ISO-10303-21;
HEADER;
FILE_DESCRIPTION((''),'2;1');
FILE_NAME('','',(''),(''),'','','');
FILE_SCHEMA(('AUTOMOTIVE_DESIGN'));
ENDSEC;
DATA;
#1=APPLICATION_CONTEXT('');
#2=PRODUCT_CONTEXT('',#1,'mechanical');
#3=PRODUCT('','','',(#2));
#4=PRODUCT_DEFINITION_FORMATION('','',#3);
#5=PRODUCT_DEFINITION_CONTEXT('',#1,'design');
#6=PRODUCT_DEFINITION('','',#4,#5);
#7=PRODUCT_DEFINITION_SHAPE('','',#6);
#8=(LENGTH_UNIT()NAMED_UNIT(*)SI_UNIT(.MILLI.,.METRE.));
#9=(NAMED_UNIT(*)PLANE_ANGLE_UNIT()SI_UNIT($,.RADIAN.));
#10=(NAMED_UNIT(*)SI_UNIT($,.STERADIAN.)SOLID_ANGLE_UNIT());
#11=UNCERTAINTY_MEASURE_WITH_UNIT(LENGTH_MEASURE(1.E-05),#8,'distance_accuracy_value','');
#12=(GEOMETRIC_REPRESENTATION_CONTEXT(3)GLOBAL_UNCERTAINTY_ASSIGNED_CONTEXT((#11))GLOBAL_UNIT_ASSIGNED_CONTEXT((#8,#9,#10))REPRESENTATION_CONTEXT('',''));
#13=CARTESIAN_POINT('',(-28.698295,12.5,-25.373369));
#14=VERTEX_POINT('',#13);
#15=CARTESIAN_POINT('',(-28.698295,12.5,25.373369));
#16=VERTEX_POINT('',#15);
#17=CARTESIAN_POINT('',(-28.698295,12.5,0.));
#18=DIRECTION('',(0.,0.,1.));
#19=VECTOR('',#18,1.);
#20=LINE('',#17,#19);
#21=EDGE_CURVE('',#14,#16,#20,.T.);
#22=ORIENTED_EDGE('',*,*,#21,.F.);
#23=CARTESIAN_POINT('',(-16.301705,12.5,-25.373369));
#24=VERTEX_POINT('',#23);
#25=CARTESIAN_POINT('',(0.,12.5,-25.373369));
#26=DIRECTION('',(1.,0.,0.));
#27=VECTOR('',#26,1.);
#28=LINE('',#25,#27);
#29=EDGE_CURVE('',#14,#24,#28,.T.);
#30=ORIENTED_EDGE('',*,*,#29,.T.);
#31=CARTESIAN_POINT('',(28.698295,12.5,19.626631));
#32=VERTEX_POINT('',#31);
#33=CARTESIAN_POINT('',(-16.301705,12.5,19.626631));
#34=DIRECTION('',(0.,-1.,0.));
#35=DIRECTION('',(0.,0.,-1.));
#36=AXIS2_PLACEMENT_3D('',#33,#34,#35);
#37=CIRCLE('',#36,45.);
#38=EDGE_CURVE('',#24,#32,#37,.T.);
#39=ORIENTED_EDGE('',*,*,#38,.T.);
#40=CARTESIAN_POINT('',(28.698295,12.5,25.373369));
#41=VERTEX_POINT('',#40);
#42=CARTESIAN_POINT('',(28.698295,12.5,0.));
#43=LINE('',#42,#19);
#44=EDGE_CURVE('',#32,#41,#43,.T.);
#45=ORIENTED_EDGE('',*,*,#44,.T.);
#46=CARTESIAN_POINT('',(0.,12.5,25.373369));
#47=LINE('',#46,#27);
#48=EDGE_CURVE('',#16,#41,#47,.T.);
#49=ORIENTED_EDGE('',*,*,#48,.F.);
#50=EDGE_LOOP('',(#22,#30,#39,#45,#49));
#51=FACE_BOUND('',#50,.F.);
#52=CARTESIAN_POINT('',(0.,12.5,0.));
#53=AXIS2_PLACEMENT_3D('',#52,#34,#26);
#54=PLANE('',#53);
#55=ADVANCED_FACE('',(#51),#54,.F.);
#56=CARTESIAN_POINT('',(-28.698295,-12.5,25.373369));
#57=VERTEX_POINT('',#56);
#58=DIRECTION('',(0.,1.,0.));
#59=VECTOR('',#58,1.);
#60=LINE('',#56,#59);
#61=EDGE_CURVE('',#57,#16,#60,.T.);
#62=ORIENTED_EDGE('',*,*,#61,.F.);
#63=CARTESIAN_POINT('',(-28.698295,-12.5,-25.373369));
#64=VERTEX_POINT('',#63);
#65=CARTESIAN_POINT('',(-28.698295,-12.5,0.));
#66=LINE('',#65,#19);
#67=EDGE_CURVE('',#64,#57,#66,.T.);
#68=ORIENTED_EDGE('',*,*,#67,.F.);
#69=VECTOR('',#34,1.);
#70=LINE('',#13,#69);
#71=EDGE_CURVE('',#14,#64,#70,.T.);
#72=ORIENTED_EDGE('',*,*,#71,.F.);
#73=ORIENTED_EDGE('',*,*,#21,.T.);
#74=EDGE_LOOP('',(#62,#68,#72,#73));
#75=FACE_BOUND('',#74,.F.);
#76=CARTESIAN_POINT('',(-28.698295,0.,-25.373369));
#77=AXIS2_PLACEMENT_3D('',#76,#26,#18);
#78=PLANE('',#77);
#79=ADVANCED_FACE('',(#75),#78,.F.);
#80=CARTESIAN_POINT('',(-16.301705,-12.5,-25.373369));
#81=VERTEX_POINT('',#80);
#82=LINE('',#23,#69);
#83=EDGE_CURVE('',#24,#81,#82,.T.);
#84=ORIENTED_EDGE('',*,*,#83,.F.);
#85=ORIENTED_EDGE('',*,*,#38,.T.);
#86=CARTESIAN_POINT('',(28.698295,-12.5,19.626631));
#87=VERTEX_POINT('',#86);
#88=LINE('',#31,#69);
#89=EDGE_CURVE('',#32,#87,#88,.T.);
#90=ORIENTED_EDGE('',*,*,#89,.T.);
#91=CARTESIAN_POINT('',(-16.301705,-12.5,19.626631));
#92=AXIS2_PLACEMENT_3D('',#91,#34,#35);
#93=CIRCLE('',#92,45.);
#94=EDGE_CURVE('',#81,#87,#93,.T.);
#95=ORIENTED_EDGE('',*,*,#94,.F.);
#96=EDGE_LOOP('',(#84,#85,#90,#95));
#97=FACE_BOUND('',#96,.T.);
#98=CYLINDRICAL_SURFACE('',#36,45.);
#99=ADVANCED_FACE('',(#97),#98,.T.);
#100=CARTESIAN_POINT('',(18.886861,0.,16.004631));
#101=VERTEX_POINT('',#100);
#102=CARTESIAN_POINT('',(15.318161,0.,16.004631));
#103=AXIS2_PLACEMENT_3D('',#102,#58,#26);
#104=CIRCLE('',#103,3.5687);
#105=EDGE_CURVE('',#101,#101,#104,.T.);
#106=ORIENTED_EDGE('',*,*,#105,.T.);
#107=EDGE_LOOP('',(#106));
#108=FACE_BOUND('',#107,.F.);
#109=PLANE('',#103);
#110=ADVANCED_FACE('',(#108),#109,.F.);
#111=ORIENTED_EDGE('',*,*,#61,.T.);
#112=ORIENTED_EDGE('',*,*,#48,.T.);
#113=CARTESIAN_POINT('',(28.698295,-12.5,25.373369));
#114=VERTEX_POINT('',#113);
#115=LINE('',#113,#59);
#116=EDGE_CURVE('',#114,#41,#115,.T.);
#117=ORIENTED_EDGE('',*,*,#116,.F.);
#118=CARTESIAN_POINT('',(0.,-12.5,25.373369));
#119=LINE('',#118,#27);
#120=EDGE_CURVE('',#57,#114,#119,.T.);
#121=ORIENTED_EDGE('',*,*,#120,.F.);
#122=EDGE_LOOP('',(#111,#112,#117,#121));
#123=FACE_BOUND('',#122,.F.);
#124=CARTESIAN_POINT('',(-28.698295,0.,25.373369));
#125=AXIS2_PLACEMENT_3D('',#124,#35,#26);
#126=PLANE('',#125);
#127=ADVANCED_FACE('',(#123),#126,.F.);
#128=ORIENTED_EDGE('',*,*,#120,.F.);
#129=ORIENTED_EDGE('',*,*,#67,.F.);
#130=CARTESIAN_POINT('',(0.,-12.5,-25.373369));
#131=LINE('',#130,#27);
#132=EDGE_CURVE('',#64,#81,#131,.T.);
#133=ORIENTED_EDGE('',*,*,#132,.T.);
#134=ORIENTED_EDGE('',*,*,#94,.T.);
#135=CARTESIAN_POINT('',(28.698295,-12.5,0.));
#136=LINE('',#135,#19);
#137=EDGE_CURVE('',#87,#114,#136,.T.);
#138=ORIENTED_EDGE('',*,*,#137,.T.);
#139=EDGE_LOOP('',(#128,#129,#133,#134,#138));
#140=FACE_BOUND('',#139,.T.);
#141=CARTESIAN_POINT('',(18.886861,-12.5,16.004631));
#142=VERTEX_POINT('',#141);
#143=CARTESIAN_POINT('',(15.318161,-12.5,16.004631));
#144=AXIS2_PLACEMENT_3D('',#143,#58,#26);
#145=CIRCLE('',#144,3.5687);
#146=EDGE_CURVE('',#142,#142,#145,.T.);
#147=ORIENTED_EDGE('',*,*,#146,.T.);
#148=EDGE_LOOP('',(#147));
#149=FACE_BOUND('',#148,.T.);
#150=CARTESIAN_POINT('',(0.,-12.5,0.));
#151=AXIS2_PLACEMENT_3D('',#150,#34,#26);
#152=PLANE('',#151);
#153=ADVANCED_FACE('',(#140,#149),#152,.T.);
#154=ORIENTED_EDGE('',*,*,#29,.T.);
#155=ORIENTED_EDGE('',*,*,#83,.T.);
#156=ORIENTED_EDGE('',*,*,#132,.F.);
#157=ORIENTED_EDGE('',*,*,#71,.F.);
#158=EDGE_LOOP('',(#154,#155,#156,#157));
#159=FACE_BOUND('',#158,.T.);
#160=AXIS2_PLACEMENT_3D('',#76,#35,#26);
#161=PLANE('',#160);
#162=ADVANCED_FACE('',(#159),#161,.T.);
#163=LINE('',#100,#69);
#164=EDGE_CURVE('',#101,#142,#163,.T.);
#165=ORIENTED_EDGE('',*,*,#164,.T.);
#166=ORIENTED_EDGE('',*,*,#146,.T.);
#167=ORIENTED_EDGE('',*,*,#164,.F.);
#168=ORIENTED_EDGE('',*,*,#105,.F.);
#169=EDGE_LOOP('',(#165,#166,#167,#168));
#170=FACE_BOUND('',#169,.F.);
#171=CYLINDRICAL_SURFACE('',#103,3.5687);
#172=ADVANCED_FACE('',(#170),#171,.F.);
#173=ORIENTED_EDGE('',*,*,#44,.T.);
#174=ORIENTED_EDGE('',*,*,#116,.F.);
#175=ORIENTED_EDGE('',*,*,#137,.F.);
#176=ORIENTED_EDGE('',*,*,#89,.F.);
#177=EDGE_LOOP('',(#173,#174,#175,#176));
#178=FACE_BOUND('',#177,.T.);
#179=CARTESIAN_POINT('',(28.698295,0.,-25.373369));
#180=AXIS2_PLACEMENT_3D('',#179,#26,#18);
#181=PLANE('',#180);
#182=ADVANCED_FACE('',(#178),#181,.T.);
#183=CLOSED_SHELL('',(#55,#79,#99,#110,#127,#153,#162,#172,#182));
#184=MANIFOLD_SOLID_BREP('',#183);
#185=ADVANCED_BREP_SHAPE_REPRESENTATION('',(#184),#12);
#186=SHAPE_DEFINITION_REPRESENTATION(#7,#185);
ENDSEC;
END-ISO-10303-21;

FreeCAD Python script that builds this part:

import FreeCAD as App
import Part
import Sketcher
Q = App.Units.Quantity


def edges_at(feature, points):
    """Names of the edges that pass closest to the given points."""
    edges = feature.Shape.Edges
    near = lambda p: min(range(len(edges)), key=lambda i: edges[i].distToShape(Part.Vertex(*p))[0])
    return sorted({f"Edge{near(p) + 1}" for p in points})


def add_polygon(sketch, points):
    """Adds a closed chain of lines whose ends are joined by coincident constraints."""
    first, n = sketch.GeometryCount, len(points)
    for a, b in zip(points, points[1:] + points[:1]):
        sketch.addGeometry(Part.LineSegment(App.Vector(*a, 0), App.Vector(*b, 0)), False)
    for i in range(n):
        sketch.addConstraint(Sketcher.Constraint("Coincident", first + i, 2, first + (i + 1) % n, 1))

doc = App.newDocument("Part")
body = doc.addObject("PartDesign::Body", "Body")

# Sketch on XZ plane
sketch1 = doc.addObject("Sketcher::SketchObject", "Sketch")
body.addObject(sketch1)
sketch1.AttachmentSupport = (doc.XZ_Plane, [""])
sketch1.MapMode = "FlatFace"
add_polygon(sketch1, [(-28.698295, 25.373369), (-28.698295, -25.373369), (28.698295, -25.373369), (28.698295, 25.373369)])  # lines 0-3
sketch1.addConstraint(Sketcher.Constraint("Vertical", 0))
sketch1.addConstraint(Sketcher.Constraint("Horizontal", 1))
sketch1.addConstraint(Sketcher.Constraint("Vertical", 2))
sketch1.addConstraint(Sketcher.Constraint("Horizontal", 3))
sketch1.addConstraint(Sketcher.Constraint("Symmetric", 0, 2, 2, 2, -1, 1))
sketch1.addConstraint(Sketcher.Constraint("DistanceX", 1, 1, 1, 2, Q("57.396591 mm")))
sketch1.addConstraint(Sketcher.Constraint("DistanceY", 0, 2, 0, 1, Q("50.746739 mm")))
pad1 = doc.addObject("PartDesign::Pad", "Pad")
body.addObject(pad1)
pad1.Profile = sketch1
pad1.Length = 25
pad1.Midplane = True

# Sketch on XZ plane
sketch2 = doc.addObject("Sketcher::SketchObject", "Sketch001")
body.addObject(sketch2)
sketch2.AttachmentSupport = (doc.XZ_Plane, [""])
sketch2.MapMode = "FlatFace"
sketch2.addGeometry(Part.Circle(App.Vector(15.318161, 16.004631, 0), App.Vector(0, 0, 1), 3.5687), False)
sketch2.addConstraint(Sketcher.Constraint("Diameter", 0, Q("7.1374 mm")))
sketch2.addConstraint(Sketcher.Constraint("DistanceX", -1, 1, 0, 3, Q("15.318161 mm")))
sketch2.addConstraint(Sketcher.Constraint("DistanceY", -1, 1, 0, 3, Q("16.004631 mm")))
pocket1 = doc.addObject("PartDesign::Pocket", "Pocket")
body.addObject(pocket1)
pocket1.Profile = sketch2
pocket1.Type = "ThroughAll"
pocket1.Reversed = True
doc.recompute()

fillet = doc.addObject("PartDesign::Fillet", "Fillet")
body.addObject(fillet)
fillet.Base = (pocket1, edges_at(pocket1, [(28.698, 0, -25.373)]))
fillet.Radius = 45

doc.recompute()
